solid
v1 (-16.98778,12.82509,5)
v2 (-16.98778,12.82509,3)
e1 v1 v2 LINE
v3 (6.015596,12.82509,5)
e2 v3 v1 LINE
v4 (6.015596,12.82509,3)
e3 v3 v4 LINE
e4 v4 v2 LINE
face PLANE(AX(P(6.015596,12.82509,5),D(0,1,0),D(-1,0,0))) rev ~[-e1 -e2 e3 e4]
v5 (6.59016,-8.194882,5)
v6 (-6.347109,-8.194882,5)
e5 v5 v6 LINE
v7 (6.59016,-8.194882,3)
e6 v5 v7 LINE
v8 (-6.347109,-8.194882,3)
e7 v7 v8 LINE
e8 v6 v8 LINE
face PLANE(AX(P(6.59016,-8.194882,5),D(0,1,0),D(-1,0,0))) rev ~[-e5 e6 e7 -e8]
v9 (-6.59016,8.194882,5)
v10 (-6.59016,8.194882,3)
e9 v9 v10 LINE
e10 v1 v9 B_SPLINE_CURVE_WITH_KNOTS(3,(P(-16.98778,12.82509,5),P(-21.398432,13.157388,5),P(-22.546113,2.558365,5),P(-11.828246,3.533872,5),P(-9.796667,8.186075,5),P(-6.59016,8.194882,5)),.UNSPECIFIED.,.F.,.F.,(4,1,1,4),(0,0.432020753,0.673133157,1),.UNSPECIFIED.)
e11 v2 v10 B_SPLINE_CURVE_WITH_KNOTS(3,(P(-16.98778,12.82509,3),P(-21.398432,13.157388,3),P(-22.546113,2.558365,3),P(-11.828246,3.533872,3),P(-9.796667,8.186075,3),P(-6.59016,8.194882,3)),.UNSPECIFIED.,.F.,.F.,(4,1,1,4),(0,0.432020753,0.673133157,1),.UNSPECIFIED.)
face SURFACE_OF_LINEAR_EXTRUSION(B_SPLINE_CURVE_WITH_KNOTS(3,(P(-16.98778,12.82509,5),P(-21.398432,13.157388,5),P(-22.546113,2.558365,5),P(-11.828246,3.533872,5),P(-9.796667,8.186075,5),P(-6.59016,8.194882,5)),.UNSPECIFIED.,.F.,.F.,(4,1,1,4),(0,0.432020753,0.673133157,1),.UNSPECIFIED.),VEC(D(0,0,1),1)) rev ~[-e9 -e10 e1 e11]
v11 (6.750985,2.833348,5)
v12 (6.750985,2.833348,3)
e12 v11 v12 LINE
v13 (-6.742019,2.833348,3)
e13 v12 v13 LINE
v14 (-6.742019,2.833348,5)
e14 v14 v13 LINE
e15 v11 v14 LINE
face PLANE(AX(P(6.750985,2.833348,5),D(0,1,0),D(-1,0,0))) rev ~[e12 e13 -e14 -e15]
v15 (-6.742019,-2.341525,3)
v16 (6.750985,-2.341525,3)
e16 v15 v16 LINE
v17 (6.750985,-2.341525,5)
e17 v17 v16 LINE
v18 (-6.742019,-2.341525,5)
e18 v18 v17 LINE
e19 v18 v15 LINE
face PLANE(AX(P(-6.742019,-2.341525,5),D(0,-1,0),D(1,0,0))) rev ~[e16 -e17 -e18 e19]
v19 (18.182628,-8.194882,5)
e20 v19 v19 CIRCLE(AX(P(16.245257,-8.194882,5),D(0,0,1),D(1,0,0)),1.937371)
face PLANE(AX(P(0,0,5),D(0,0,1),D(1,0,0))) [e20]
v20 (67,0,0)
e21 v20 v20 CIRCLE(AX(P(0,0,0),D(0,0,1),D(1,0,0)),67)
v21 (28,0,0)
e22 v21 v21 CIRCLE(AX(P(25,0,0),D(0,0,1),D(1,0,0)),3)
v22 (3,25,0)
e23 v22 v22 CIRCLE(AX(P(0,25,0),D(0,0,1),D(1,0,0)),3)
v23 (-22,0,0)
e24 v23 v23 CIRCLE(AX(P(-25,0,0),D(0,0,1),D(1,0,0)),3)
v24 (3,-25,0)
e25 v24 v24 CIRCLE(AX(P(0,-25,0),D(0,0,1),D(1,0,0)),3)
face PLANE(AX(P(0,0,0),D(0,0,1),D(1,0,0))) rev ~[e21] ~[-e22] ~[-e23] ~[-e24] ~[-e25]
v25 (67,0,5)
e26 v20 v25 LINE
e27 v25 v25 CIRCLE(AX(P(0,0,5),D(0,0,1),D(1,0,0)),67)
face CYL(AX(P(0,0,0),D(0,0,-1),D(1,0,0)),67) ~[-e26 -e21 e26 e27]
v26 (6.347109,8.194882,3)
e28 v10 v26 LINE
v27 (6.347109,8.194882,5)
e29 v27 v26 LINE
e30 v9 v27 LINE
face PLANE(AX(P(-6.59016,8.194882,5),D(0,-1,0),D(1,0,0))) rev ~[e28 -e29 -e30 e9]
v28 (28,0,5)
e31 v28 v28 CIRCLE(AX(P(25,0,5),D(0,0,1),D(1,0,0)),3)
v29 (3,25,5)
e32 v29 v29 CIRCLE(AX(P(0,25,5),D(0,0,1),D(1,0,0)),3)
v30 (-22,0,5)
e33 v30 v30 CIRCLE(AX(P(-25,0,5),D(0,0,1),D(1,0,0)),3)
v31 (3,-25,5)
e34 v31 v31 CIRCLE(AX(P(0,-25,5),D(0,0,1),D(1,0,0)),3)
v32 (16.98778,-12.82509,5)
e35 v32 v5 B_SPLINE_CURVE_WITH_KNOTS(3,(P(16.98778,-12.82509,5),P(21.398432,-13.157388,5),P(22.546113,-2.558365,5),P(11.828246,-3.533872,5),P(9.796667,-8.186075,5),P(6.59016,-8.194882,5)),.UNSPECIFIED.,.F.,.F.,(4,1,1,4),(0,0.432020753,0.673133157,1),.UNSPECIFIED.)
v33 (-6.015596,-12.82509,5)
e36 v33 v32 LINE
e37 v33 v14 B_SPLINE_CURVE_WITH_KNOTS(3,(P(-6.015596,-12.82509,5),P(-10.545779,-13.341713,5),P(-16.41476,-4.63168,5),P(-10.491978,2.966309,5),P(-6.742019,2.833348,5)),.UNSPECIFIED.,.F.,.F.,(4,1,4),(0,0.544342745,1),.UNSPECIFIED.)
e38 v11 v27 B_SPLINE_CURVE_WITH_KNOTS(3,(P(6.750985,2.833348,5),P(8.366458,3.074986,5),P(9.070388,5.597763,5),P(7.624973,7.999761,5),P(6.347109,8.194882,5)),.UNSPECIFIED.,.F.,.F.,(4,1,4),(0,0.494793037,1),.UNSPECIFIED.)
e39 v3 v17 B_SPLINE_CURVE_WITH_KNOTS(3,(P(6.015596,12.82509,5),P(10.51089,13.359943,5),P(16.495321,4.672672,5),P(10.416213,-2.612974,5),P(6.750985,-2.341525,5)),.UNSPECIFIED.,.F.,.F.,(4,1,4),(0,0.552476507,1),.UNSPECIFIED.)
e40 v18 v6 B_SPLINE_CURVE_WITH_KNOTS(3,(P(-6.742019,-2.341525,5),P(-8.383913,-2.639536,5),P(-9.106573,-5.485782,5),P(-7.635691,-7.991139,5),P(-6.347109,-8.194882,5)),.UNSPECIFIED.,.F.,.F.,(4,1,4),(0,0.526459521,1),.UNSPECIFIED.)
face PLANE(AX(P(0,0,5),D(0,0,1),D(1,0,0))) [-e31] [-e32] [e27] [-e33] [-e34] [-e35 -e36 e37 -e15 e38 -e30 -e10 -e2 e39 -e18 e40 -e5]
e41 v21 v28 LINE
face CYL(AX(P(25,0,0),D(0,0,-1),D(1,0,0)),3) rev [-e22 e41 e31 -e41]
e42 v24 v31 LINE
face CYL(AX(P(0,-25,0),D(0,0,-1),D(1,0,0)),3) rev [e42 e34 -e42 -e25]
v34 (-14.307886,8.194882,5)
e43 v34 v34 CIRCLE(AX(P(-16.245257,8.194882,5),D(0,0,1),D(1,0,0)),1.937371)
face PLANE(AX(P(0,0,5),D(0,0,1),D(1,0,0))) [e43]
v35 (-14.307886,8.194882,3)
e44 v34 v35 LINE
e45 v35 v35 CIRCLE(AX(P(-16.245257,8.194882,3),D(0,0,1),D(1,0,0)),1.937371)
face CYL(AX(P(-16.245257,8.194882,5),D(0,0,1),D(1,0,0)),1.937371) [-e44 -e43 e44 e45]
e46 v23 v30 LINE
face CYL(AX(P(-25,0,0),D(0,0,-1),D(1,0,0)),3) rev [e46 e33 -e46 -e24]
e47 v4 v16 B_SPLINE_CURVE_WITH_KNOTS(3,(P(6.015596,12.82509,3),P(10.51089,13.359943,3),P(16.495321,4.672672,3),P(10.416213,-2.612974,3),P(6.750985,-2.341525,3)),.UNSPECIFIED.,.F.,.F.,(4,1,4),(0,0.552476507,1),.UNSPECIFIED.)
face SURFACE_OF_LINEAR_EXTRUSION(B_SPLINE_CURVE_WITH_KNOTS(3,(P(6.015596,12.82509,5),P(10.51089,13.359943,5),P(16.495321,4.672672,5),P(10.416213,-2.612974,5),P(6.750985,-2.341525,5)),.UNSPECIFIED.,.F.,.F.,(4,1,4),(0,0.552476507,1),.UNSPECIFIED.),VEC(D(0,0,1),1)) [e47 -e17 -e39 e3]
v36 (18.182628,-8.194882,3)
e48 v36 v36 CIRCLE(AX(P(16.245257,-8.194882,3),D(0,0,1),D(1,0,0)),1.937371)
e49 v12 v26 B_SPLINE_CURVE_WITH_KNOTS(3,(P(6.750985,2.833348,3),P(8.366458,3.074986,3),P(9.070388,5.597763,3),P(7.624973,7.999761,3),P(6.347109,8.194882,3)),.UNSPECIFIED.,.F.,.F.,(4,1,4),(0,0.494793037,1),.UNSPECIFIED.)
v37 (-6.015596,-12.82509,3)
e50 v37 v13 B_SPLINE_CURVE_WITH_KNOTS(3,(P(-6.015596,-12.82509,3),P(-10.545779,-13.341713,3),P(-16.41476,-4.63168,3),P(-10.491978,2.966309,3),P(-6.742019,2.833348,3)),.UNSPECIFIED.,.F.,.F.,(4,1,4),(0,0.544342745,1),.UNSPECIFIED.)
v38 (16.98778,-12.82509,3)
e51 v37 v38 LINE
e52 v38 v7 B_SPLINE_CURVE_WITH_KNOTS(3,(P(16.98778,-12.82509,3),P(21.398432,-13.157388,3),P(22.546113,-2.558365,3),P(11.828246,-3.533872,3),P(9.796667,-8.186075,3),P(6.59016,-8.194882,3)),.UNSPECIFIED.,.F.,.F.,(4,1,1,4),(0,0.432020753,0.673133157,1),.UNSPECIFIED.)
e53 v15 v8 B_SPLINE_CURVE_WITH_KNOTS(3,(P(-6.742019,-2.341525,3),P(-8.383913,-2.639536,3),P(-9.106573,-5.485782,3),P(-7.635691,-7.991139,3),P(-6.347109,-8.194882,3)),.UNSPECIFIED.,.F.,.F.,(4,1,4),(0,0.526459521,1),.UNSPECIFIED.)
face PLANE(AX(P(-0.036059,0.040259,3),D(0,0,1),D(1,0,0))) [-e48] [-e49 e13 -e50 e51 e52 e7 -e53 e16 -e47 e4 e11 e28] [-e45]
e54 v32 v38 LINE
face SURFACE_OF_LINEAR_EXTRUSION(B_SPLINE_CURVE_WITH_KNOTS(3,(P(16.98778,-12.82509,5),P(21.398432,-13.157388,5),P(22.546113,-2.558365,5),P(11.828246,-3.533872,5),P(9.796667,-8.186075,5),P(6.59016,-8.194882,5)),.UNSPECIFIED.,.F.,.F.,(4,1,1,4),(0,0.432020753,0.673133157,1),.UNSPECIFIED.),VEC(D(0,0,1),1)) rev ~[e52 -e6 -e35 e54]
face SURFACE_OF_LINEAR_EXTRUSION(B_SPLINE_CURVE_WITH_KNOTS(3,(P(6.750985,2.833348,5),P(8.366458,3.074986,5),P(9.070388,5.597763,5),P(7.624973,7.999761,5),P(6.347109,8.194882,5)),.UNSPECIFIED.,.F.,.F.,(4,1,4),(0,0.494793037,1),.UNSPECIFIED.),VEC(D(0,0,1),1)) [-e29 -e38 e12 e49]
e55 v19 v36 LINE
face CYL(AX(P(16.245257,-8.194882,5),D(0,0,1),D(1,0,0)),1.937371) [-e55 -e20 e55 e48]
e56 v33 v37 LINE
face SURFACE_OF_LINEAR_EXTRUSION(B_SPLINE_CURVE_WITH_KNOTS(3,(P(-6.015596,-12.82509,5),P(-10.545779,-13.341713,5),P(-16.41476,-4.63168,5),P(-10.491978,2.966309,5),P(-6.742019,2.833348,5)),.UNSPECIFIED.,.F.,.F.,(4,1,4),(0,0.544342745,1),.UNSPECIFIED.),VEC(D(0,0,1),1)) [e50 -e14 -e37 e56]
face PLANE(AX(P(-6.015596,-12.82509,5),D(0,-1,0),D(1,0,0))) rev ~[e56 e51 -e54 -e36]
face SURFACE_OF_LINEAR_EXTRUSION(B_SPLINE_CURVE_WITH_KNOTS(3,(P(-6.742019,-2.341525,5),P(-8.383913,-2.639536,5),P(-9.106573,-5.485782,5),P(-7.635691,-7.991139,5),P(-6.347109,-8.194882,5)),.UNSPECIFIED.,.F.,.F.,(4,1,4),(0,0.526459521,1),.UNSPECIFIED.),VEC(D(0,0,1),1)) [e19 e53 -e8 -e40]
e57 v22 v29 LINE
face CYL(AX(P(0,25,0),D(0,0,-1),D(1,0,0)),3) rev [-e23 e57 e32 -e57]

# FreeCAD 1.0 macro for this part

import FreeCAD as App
import Part
import Sketcher

V = App.Vector

doc = App.newDocument("Part")
body = doc.addObject("PartDesign::Body", "Body")

sketch1 = doc.addObject("Sketcher::SketchObject", "Sketch")
body.addObject(sketch1)
sketch1.AttachmentSupport = (doc.XY_Plane, [""])
sketch1.MapMode = "FlatFace"
sketch1.addGeometry([
    Part.Circle(V(0, 0, 0), V(0, 0, 1), 67),
    Part.Circle(V(0, -25, 0), V(0, 0, 1), 3),
    Part.Circle(V(-25, 0, 0), V(0, 0, 1), 3),
    Part.Circle(V(25, 0, 0), V(0, 0, 1), 3),
    Part.Circle(V(0, 25, 0), V(0, 0, 1), 3),
], False)
sketch1.addConstraint([
    Sketcher.Constraint("Coincident", 0, 3, -1, 1),
    Sketcher.Constraint("Equal", 1, 2),
    Sketcher.Constraint("Equal", 2, 3),
    Sketcher.Constraint("Equal", 3, 4),
    Sketcher.Constraint("Symmetric", 2, 3, 3, 3, -1, 1),
    Sketcher.Constraint("Symmetric", 1, 3, 4, 3, -1, 1),
    Sketcher.Constraint("PointOnObject", 1, 3, -2),
    Sketcher.Constraint("PointOnObject", 2, 3, -1),
    Sketcher.Constraint("Diameter", 0, 134.0),
    Sketcher.Constraint("Diameter", 1, 6.0),
    Sketcher.Constraint("DistanceY", 1, 3, -1, 1, 25.0),
    Sketcher.Constraint("DistanceX", 2, 3, -1, 1, 25.0),
])
pad1 = doc.addObject("PartDesign::Pad", "Pad")
body.addObject(pad1)
pad1.Profile = sketch1
pad1.Length = 5

sketch2 = doc.addObject("Sketcher::SketchObject", "Sketch001")
body.addObject(sketch2)
sketch2.AttachmentSupport = (doc.XY_Plane, [""])
sketch2.MapMode = "FlatFace"
sketch2.AttachmentOffset = App.Placement(V(0, 0, 5), App.Rotation())
sketch2.addGeometry([
    Part.LineSegment(V(6.015596, 12.82509, 0), V(-16.98778, 12.82509, 0)),
    Part.BSplineCurve([V(-16.98778, 12.82509, 0), V(-21.398432, 13.157388, 0), V(-22.546113, 2.558365, 0), V(-11.828246, 3.533872, 0), V(-9.796667, 8.186075, 0), V(-6.59016, 8.194882, 0)], [4, 1, 1, 4], [0, 0.432020753, 0.673133157, 1], False, 3, [1, 1, 1, 1, 1, 1], False),
    Part.LineSegment(V(-6.59016, 8.194882, 0), V(6.347109, 8.194882, 0)),
    Part.BSplineCurve([V(6.750985, 2.833348, 0), V(8.366458, 3.074986, 0), V(9.070388, 5.597763, 0), V(7.624973, 7.999761, 0), V(6.347109, 8.194882, 0)], [4, 1, 4], [0, 0.494793037, 1], False, 3, [1, 1, 1, 1, 1], False),
    Part.LineSegment(V(6.750985, 2.833348, 0), V(-6.742019, 2.833348, 0)),
    Part.BSplineCurve([V(-6.015596, -12.82509, 0), V(-10.545779, -13.341713, 0), V(-16.41476, -4.63168, 0), V(-10.491978, 2.966309, 0), V(-6.742019, 2.833348, 0)], [4, 1, 4], [0, 0.544342745, 1], False, 3, [1, 1, 1, 1, 1], False),
    Part.LineSegment(V(-6.015596, -12.82509, 0), V(16.98778, -12.82509, 0)),
    Part.BSplineCurve([V(16.98778, -12.82509, 0), V(21.398432, -13.157388, 0), V(22.546113, -2.558365, 0), V(11.828246, -3.533872, 0), V(9.796667, -8.186075, 0), V(6.59016, -8.194882, 0)], [4, 1, 1, 4], [0, 0.432020753, 0.673133157, 1], False, 3, [1, 1, 1, 1, 1, 1], False),
    Part.LineSegment(V(6.59016, -8.194882, 0), V(-6.347109, -8.194882, 0)),
    Part.BSplineCurve([V(-6.742019, -2.341525, 0), V(-8.383913, -2.639536, 0), V(-9.106573, -5.485782, 0), V(-7.635691, -7.991139, 0), V(-6.347109, -8.194882, 0)], [4, 1, 4], [0, 0.526459521, 1], False, 3, [1, 1, 1, 1, 1], False),
    Part.LineSegment(V(-6.742019, -2.341525, 0), V(6.750985, -2.341525, 0)),
    Part.BSplineCurve([V(6.015596, 12.82509, 0), V(10.51089, 13.359943, 0), V(16.495321, 4.672672, 0), V(10.416213, -2.612974, 0), V(6.750985, -2.341525, 0)], [4, 1, 4], [0, 0.552476507, 1], False, 3, [1, 1, 1, 1, 1], False),
    Part.Circle(V(16.245257, -8.194882, 0), V(0, 0, 1), 1.937371),
    Part.Circle(V(-16.245257, 8.194882, 0), V(0, 0, 1), 1.937371),
], False)
sketch2.addConstraint([
    Sketcher.Constraint("Block", 1),
    Sketcher.Constraint("Block", 3),
    Sketcher.Constraint("Block", 5),
    Sketcher.Constraint("Block", 7),
    Sketcher.Constraint("Block", 9),
    Sketcher.Constraint("Block", 11),
    Sketcher.Constraint("Coincident", 0, 2, 1, 1),
    Sketcher.Constraint("Coincident", 1, 2, 2, 1),
    Sketcher.Constraint("Coincident", 2, 2, 3, 2),
    Sketcher.Constraint("Coincident", 3, 1, 4, 1),
    Sketcher.Constraint("Coincident", 4, 2, 5, 2),
    Sketcher.Constraint("Coincident", 5, 1, 6, 1),
    Sketcher.Constraint("Coincident", 6, 2, 7, 1),
    Sketcher.Constraint("Coincident", 7, 2, 8, 1),
    Sketcher.Constraint("Coincident", 8, 2, 9, 2),
    Sketcher.Constraint("Coincident", 9, 1, 10, 1),
    Sketcher.Constraint("Coincident", 10, 2, 11, 2),
    Sketcher.Constraint("Coincident", 11, 1, 0, 1),
    Sketcher.Constraint("Equal", 12, 13),
    Sketcher.Constraint("Symmetric", 12, 3, 13, 3, -1, 1),
    Sketcher.Constraint("Horizontal", 13, 3, 2, 2),
    Sketcher.Constraint("Diameter", 12, 3.874742),
    Sketcher.Constraint("DistanceX", 13, 3, 4, 2, 9.503238),
])
pocket1 = doc.addObject("PartDesign::Pocket", "Pocket")
body.addObject(pocket1)
pocket1.Profile = sketch2
pocket1.Length = 2

doc.recompute()
